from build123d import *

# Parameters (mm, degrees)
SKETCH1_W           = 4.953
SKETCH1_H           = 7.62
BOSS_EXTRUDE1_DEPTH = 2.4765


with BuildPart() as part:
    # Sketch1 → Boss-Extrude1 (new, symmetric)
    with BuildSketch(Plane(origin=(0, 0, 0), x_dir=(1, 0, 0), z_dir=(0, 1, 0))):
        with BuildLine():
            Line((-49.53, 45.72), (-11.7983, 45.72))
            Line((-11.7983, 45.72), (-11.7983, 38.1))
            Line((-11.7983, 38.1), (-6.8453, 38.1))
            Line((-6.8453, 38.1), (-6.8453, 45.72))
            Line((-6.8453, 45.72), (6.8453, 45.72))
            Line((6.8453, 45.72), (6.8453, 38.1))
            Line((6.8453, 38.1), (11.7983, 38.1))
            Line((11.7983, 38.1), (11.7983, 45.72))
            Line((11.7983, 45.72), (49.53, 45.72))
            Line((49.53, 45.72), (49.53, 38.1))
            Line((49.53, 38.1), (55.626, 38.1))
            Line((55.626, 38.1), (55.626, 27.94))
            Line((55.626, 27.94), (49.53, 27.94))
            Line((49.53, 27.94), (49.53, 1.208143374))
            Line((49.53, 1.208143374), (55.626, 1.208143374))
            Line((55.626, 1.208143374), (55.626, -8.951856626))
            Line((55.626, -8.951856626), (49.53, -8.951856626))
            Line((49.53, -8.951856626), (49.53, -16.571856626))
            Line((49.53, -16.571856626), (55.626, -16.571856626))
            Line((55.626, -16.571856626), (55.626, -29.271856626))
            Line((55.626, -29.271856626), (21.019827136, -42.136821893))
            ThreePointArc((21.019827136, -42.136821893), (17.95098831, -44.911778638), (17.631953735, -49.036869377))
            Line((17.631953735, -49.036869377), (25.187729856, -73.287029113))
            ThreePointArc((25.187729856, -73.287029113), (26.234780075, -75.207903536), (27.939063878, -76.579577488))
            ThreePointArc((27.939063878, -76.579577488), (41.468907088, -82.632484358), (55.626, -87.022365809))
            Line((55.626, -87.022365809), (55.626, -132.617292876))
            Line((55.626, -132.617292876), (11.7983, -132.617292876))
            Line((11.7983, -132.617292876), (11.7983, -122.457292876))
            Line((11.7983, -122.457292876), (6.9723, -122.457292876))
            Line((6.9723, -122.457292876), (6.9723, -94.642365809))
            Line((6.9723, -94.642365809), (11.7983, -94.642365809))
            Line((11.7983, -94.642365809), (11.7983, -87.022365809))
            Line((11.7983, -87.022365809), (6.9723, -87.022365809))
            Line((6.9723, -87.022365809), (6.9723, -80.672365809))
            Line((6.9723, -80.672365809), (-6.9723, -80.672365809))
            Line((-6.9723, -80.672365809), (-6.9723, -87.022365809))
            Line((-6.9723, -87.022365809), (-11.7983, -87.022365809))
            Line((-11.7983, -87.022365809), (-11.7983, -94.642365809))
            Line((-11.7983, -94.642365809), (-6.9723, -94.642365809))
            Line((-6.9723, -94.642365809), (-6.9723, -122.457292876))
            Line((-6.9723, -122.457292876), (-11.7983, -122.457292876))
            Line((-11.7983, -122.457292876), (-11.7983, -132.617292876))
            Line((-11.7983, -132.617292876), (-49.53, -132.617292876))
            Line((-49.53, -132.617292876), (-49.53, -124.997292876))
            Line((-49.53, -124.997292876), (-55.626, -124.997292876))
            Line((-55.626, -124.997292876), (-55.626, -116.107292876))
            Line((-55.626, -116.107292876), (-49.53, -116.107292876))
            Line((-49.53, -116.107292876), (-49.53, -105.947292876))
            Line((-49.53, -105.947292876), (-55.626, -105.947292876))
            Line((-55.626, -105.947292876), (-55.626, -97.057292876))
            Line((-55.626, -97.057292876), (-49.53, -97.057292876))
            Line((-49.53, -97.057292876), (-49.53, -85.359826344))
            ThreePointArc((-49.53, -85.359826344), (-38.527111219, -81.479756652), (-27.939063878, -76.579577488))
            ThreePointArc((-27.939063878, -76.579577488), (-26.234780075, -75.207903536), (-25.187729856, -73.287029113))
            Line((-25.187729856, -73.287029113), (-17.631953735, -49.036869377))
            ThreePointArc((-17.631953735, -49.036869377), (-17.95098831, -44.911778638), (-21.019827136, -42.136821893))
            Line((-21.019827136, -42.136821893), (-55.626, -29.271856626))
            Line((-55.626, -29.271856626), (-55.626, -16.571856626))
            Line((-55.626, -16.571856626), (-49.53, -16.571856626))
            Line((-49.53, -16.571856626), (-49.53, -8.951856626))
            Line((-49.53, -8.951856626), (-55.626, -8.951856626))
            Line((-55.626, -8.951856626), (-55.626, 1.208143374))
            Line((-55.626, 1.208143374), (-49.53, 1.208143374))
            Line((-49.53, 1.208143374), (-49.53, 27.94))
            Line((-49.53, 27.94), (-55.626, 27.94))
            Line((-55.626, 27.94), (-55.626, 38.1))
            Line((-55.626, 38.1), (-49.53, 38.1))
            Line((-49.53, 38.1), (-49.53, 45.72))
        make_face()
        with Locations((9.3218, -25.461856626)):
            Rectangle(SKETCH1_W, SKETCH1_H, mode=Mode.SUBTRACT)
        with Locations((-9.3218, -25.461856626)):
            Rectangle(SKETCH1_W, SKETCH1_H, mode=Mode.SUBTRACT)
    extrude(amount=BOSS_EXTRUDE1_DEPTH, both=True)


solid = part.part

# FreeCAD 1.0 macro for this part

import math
import FreeCAD as App
import Part
import Sketcher
from FreeCAD import Vector
Q = App.Units.Quantity


def add_polygon(sketch, points):
    """Adds a closed chain of lines whose ends are joined by coincident constraints."""
    first, n = sketch.GeometryCount, len(points)
    for a, b in zip(points, points[1:] + points[:1]):
        sketch.addGeometry(Part.LineSegment(App.Vector(*a, 0), App.Vector(*b, 0)), False)
    for i in range(n):
        sketch.addConstraint(Sketcher.Constraint("Coincident", first + i, 2, first + (i + 1) % n, 1))

doc = App.newDocument("Part")
body = doc.addObject("PartDesign::Body", "Body")

# Sketch on XZ plane
sketch1 = body.newObject("Sketcher::SketchObject", "Sketch")
sketch1.AttachmentSupport = (doc.getObject("XZ_Plane"), [""])
sketch1.MapMode = "FlatFace"
sketch1.addGeometry(Part.LineSegment(Vector(-11.8, -45.7, 0), Vector(-49.5, -45.7, 0)), False)  # 0
sketch1.addGeometry(Part.LineSegment(Vector(-49.5, -45.7, 0), Vector(-49.5, -38.1, 0)), False)  # 1
sketch1.addGeometry(Part.LineSegment(Vector(-49.5, -38.1, 0), Vector(-55.6, -38.1, 0)), False)  # 2
sketch1.addGeometry(Part.LineSegment(Vector(-55.6, -38.1, 0), Vector(-55.6, -27.9, 0)), False)  # 3
sketch1.addGeometry(Part.LineSegment(Vector(-55.6, -27.9, 0), Vector(-49.5, -27.9, 0)), False)  # 4
sketch1.addGeometry(Part.LineSegment(Vector(-49.5, -27.9, 0), Vector(-49.5, -1.2, 0)), False)  # 5
sketch1.addGeometry(Part.LineSegment(Vector(-49.5, -1.2, 0), Vector(-55.6, -1.2, 0)), False)  # 6
sketch1.addGeometry(Part.LineSegment(Vector(-55.6, -1.2, 0), Vector(-55.6, 9, 0)), False)  # 7
sketch1.addGeometry(Part.LineSegment(Vector(-55.6, 9, 0), Vector(-49.5, 9, 0)), False)  # 8
sketch1.addGeometry(Part.LineSegment(Vector(-49.5, 9, 0), Vector(-49.5, 16.6, 0)), False)  # 9
sketch1.addGeometry(Part.LineSegment(Vector(-49.5, 16.6, 0), Vector(-55.6, 16.6, 0)), False)  # 10
sketch1.addGeometry(Part.LineSegment(Vector(-55.6, 16.6, 0), Vector(-55.6, 29.3, 0)), False)  # 11
sketch1.addGeometry(Part.LineSegment(Vector(-55.6, 29.3, 0), Vector(-21, 42.1, 0)), False)  # 12
sketch1.addGeometry(Part.ArcOfCircle(Part.Circle(Vector(-23, 47.4, 0), Vector(0, 0, 1), 5.6), math.radians(-70), math.radians(17)), False)  # 13
sketch1.addGeometry(Part.LineSegment(Vector(-17.6, 49, 0), Vector(-25.2, 73.3, 0)), False)  # 14
sketch1.addGeometry(Part.ArcOfCircle(Part.Circle(Vector(-30.5, 71.6, 0), Vector(0, 0, 1), 5.6), math.radians(17), math.radians(62)), False)  # 15
sketch1.addGeometry(Part.ArcOfCircle(Part.Circle(Vector(-85.1, -33, 0), Vector(0, 0, 1), 123.6), math.radians(62.46), math.radians(73.28)), False)  # 16
sketch1.addGeometry(Part.LineSegment(Vector(-49.5, 85.4, 0), Vector(-49.5, 97.1, 0)), False)  # 17
sketch1.addGeometry(Part.LineSegment(Vector(-49.5, 97.1, 0), Vector(-55.6, 97.1, 0)), False)  # 18
sketch1.addGeometry(Part.LineSegment(Vector(-55.6, 97.1, 0), Vector(-55.6, 105.9, 0)), False)  # 19
sketch1.addGeometry(Part.LineSegment(Vector(-55.6, 105.9, 0), Vector(-49.5, 105.9, 0)), False)  # 20
sketch1.addGeometry(Part.LineSegment(Vector(-49.5, 105.9, 0), Vector(-49.5, 116.1, 0)), False)  # 21
sketch1.addGeometry(Part.LineSegment(Vector(-49.5, 116.1, 0), Vector(-55.6, 116.1, 0)), False)  # 22
sketch1.addGeometry(Part.LineSegment(Vector(-55.6, 116.1, 0), Vector(-55.6, 125, 0)), False)  # 23
sketch1.addGeometry(Part.LineSegment(Vector(-55.6, 125, 0), Vector(-49.5, 125, 0)), False)  # 24
sketch1.addGeometry(Part.LineSegment(Vector(-49.5, 125, 0), Vector(-49.5, 132.6, 0)), False)  # 25
sketch1.addGeometry(Part.LineSegment(Vector(-49.5, 132.6, 0), Vector(-11.8, 132.6, 0)), False)  # 26
sketch1.addGeometry(Part.LineSegment(Vector(-11.8, 132.6, 0), Vector(-11.8, 122.5, 0)), False)  # 27
sketch1.addGeometry(Part.LineSegment(Vector(-11.8, 122.5, 0), Vector(-7, 122.5, 0)), False)  # 28
sketch1.addGeometry(Part.LineSegment(Vector(-7, 122.5, 0), Vector(-7, 94.6, 0)), False)  # 29
sketch1.addGeometry(Part.LineSegment(Vector(-7, 94.6, 0), Vector(-11.8, 94.6, 0)), False)  # 30
sketch1.addGeometry(Part.LineSegment(Vector(-11.8, 94.6, 0), Vector(-11.8, 87, 0)), False)  # 31
sketch1.addGeometry(Part.LineSegment(Vector(-11.8, 87, 0), Vector(-7, 87, 0)), False)  # 32
sketch1.addGeometry(Part.LineSegment(Vector(-7, 87, 0), Vector(-7, 80.7, 0)), False)  # 33
sketch1.addGeometry(Part.LineSegment(Vector(-7, 80.7, 0), Vector(7, 80.7, 0)), False)  # 34
sketch1.addGeometry(Part.LineSegment(Vector(7, 80.7, 0), Vector(7, 87, 0)), False)  # 35
sketch1.addGeometry(Part.LineSegment(Vector(7, 87, 0), Vector(11.8, 87, 0)), False)  # 36
sketch1.addGeometry(Part.LineSegment(Vector(11.8, 87, 0), Vector(11.8, 94.6, 0)), False)  # 37
sketch1.addGeometry(Part.LineSegment(Vector(11.8, 94.6, 0), Vector(7, 94.6, 0)), False)  # 38
sketch1.addGeometry(Part.LineSegment(Vector(7, 94.6, 0), Vector(7, 122.5, 0)), False)  # 39
sketch1.addGeometry(Part.LineSegment(Vector(7, 122.5, 0), Vector(11.8, 122.5, 0)), False)  # 40
sketch1.addGeometry(Part.LineSegment(Vector(11.8, 122.5, 0), Vector(11.8, 132.6, 0)), False)  # 41
sketch1.addGeometry(Part.LineSegment(Vector(11.8, 132.6, 0), Vector(55.6, 132.6, 0)), False)  # 42
sketch1.addGeometry(Part.LineSegment(Vector(55.6, 132.6, 0), Vector(55.6, 87, 0)), False)  # 43
sketch1.addGeometry(Part.ArcOfCircle(Part.Circle(Vector(85.1, -33, 0), Vector(0, 0, 1), 123.6), math.radians(103.79), math.radians(117.54)), False)  # 44
sketch1.addGeometry(Part.ArcOfCircle(Part.Circle(Vector(30.5, 71.6, 0), Vector(0, 0, 1), 5.6), math.radians(118), math.radians(163)), False)  # 45
sketch1.addGeometry(Part.LineSegment(Vector(25.2, 73.3, 0), Vector(17.6, 49, 0)), False)  # 46
sketch1.addGeometry(Part.ArcOfCircle(Part.Circle(Vector(23, 47.4, 0), Vector(0, 0, 1), 5.6), math.radians(163), math.radians(250)), False)  # 47
sketch1.addGeometry(Part.LineSegment(Vector(21, 42.1, 0), Vector(55.6, 29.3, 0)), False)  # 48
sketch1.addGeometry(Part.LineSegment(Vector(55.6, 29.3, 0), Vector(55.6, 16.6, 0)), False)  # 49
sketch1.addGeometry(Part.LineSegment(Vector(55.6, 16.6, 0), Vector(49.5, 16.6, 0)), False)  # 50
sketch1.addGeometry(Part.LineSegment(Vector(49.5, 16.6, 0), Vector(49.5, 9, 0)), False)  # 51
sketch1.addGeometry(Part.LineSegment(Vector(49.5, 9, 0), Vector(55.6, 9, 0)), False)  # 52
sketch1.addGeometry(Part.LineSegment(Vector(55.6, 9, 0), Vector(55.6, -1.2, 0)), False)  # 53
sketch1.addGeometry(Part.LineSegment(Vector(55.6, -1.2, 0), Vector(49.5, -1.2, 0)), False)  # 54
sketch1.addGeometry(Part.LineSegment(Vector(49.5, -1.2, 0), Vector(49.5, -27.9, 0)), False)  # 55
sketch1.addGeometry(Part.LineSegment(Vector(49.5, -27.9, 0), Vector(55.6, -27.9, 0)), False)  # 56
sketch1.addGeometry(Part.LineSegment(Vector(55.6, -27.9, 0), Vector(55.6, -38.1, 0)), False)  # 57
sketch1.addGeometry(Part.LineSegment(Vector(55.6, -38.1, 0), Vector(49.5, -38.1, 0)), False)  # 58
sketch1.addGeometry(Part.LineSegment(Vector(49.5, -38.1, 0), Vector(49.5, -45.7, 0)), False)  # 59
sketch1.addGeometry(Part.LineSegment(Vector(49.5, -45.7, 0), Vector(11.8, -45.7, 0)), False)  # 60
sketch1.addGeometry(Part.LineSegment(Vector(11.8, -45.7, 0), Vector(11.8, -38.1, 0)), False)  # 61
sketch1.addGeometry(Part.LineSegment(Vector(11.8, -38.1, 0), Vector(6.8, -38.1, 0)), False)  # 62
sketch1.addGeometry(Part.LineSegment(Vector(6.8, -38.1, 0), Vector(6.8, -45.7, 0)), False)  # 63
sketch1.addGeometry(Part.LineSegment(Vector(6.8, -45.7, 0), Vector(-6.8, -45.7, 0)), False)  # 64
sketch1.addGeometry(Part.LineSegment(Vector(-6.8, -45.7, 0), Vector(-6.8, -38.1, 0)), False)  # 65
sketch1.addGeometry(Part.LineSegment(Vector(-6.8, -38.1, 0), Vector(-11.8, -38.1, 0)), False)  # 66
sketch1.addGeometry(Part.LineSegment(Vector(-11.8, -38.1, 0), Vector(-11.8, -45.7, 0)), False)  # 67
add_polygon(sketch1, [(6.8, 29.3), (6.8, 21.7), (11.8, 21.7), (11.8, 29.3)])  # lines 68-71
add_polygon(sketch1, [(-11.8, 29.3), (-11.8, 21.7), (-6.8, 21.7), (-6.8, 29.3)])  # lines 72-75
sketch1.addConstraint([
    Sketcher.Constraint("Coincident", 0, 2, 1, 1),
    Sketcher.Constraint("Coincident", 1, 2, 2, 1),
    Sketcher.Constraint("Coincident", 2, 2, 3, 1),
    Sketcher.Constraint("Coincident", 3, 2, 4, 1),
    Sketcher.Constraint("Coincident", 4, 2, 5, 1),
    Sketcher.Constraint("Coincident", 5, 2, 6, 1),
    Sketcher.Constraint("Coincident", 6, 2, 7, 1),
    Sketcher.Constraint("Coincident", 7, 2, 8, 1),
    Sketcher.Constraint("Coincident", 8, 2, 9, 1),
    Sketcher.Constraint("Coincident", 9, 2, 10, 1),
    Sketcher.Constraint("Coincident", 10, 2, 11, 1),
    Sketcher.Constraint("Coincident", 11, 2, 12, 1),
    Sketcher.Constraint("Tangent", 12, 2, 13, 1),
    Sketcher.Constraint("Tangent", 13, 2, 14, 1),
    Sketcher.Constraint("Tangent", 14, 2, 15, 1),
    Sketcher.Constraint("Tangent", 15, 2, 16, 1),
    Sketcher.Constraint("Coincident", 16, 2, 17, 1),
    Sketcher.Constraint("Coincident", 17, 2, 18, 1),
    Sketcher.Constraint("Coincident", 18, 2, 19, 1),
    Sketcher.Constraint("Coincident", 19, 2, 20, 1),
    Sketcher.Constraint("Coincident", 20, 2, 21, 1),
    Sketcher.Constraint("Coincident", 21, 2, 22, 1),
    Sketcher.Constraint("Coincident", 22, 2, 23, 1),
    Sketcher.Constraint("Coincident", 23, 2, 24, 1),
    Sketcher.Constraint("Coincident", 24, 2, 25, 1),
    Sketcher.Constraint("Coincident", 25, 2, 26, 1),
    Sketcher.Constraint("Coincident", 26, 2, 27, 1),
    Sketcher.Constraint("Coincident", 27, 2, 28, 1),
    Sketcher.Constraint("Coincident", 28, 2, 29, 1),
    Sketcher.Constraint("Coincident", 29, 2, 30, 1),
    Sketcher.Constraint("Coincident", 30, 2, 31, 1),
    Sketcher.Constraint("Coincident", 31, 2, 32, 1),
    Sketcher.Constraint("Coincident", 32, 2, 33, 1),
    Sketcher.Constraint("Coincident", 33, 2, 34, 1),
    Sketcher.Constraint("Coincident", 34, 2, 35, 1),
    Sketcher.Constraint("Coincident", 35, 2, 36, 1),
    Sketcher.Constraint("Coincident", 36, 2, 37, 1),
    Sketcher.Constraint("Coincident", 37, 2, 38, 1),
    Sketcher.Constraint("Coincident", 38, 2, 39, 1),
    Sketcher.Constraint("Coincident", 39, 2, 40, 1),
    Sketcher.Constraint("Coincident", 40, 2, 41, 1),
    Sketcher.Constraint("Coincident", 41, 2, 42, 1),
    Sketcher.Constraint("Coincident", 42, 2, 43, 1),
    Sketcher.Constraint("Coincident", 43, 2, 44, 1),
    Sketcher.Constraint("Tangent", 44, 2, 45, 1),
    Sketcher.Constraint("Tangent", 45, 2, 46, 1),
    Sketcher.Constraint("Tangent", 46, 2, 47, 1),
    Sketcher.Constraint("Tangent", 47, 2, 48, 1),
    Sketcher.Constraint("Coincident", 48, 2, 49, 1),
    Sketcher.Constraint("Coincident", 49, 2, 50, 1),
    Sketcher.Constraint("Coincident", 50, 2, 51, 1),
    Sketcher.Constraint("Coincident", 51, 2, 52, 1),
    Sketcher.Constraint("Coincident", 52, 2, 53, 1),
    Sketcher.Constraint("Coincident", 53, 2, 54, 1),
    Sketcher.Constraint("Coincident", 54, 2, 55, 1),
    Sketcher.Constraint("Coincident", 55, 2, 56, 1),
    Sketcher.Constraint("Coincident", 56, 2, 57, 1),
    Sketcher.Constraint("Coincident", 57, 2, 58, 1),
    Sketcher.Constraint("Coincident", 58, 2, 59, 1),
    Sketcher.Constraint("Coincident", 59, 2, 60, 1),
    Sketcher.Constraint("Coincident", 60, 2, 61, 1),
    Sketcher.Constraint("Coincident", 61, 2, 62, 1),
    Sketcher.Constraint("Coincident", 62, 2, 63, 1),
    Sketcher.Constraint("Coincident", 63, 2, 64, 1),
    Sketcher.Constraint("Coincident", 64, 2, 65, 1),
    Sketcher.Constraint("Coincident", 65, 2, 66, 1),
    Sketcher.Constraint("Coincident", 66, 2, 67, 1),
    Sketcher.Constraint("Coincident", 67, 2, 0, 1),
    Sketcher.Constraint("Horizontal", 0),
    Sketcher.Constraint("Vertical", 1),
    Sketcher.Constraint("Horizontal", 2),
    Sketcher.Constraint("Vertical", 3),
    Sketcher.Constraint("Horizontal", 4),
    Sketcher.Constraint("Vertical", 5),
    Sketcher.Constraint("Horizontal", 6),
    Sketcher.Constraint("Vertical", 7),
    Sketcher.Constraint("Horizontal", 8),
    Sketcher.Constraint("Vertical", 9),
    Sketcher.Constraint("Horizontal", 10),
    Sketcher.Constraint("Vertical", 11),
    Sketcher.Constraint("Vertical", 17),
    Sketcher.Constraint("Horizontal", 18),
    Sketcher.Constraint("Vertical", 19),
    Sketcher.Constraint("Horizontal", 20),
    Sketcher.Constraint("Vertical", 21),
    Sketcher.Constraint("Horizontal", 22),
    Sketcher.Constraint("Vertical", 23),
    Sketcher.Constraint("Horizontal", 24),
    Sketcher.Constraint("Vertical", 25),
    Sketcher.Constraint("Horizontal", 26),
    Sketcher.Constraint("Vertical", 27),
    Sketcher.Constraint("Horizontal", 28),
    Sketcher.Constraint("Vertical", 29),
    Sketcher.Constraint("Horizontal", 30),
    Sketcher.Constraint("Vertical", 31),
    Sketcher.Constraint("Horizontal", 32),
    Sketcher.Constraint("Vertical", 33),
    Sketcher.Constraint("Horizontal", 34),
    Sketcher.Constraint("Vertical", 35),
    Sketcher.Constraint("Horizontal", 36),
    Sketcher.Constraint("Vertical", 37),
    Sketcher.Constraint("Horizontal", 38),
    Sketcher.Constraint("Vertical", 39),
    Sketcher.Constraint("Horizontal", 40),
    Sketcher.Constraint("Vertical", 41),
    Sketcher.Constraint("Horizontal", 42),
    Sketcher.Constraint("Vertical", 43),
    Sketcher.Constraint("Vertical", 49),
    Sketcher.Constraint("Horizontal", 50),
    Sketcher.Constraint("Vertical", 51),
    Sketcher.Constraint("Horizontal", 52),
    Sketcher.Constraint("Vertical", 53),
    Sketcher.Constraint("Horizontal", 54),
    Sketcher.Constraint("Vertical", 55),
    Sketcher.Constraint("Horizontal", 56),
    Sketcher.Constraint("Vertical", 57),
    Sketcher.Constraint("Horizontal", 58),
    Sketcher.Constraint("Vertical", 59),
    Sketcher.Constraint("Horizontal", 60),
    Sketcher.Constraint("Vertical", 61),
    Sketcher.Constraint("Horizontal", 62),
    Sketcher.Constraint("Vertical", 63),
    Sketcher.Constraint("Horizontal", 64),
    Sketcher.Constraint("Vertical", 65),
    Sketcher.Constraint("Horizontal", 66),
    Sketcher.Constraint("Vertical", 67),
    Sketcher.Constraint("Vertical", 68),
    Sketcher.Constraint("Horizontal", 69),
    Sketcher.Constraint("Vertical", 70),
    Sketcher.Constraint("Horizontal", 71),
    Sketcher.Constraint("Vertical", 72),
    Sketcher.Constraint("Horizontal", 73),
    Sketcher.Constraint("Vertical", 74),
    Sketcher.Constraint("Horizontal", 75),
    Sketcher.Constraint("Equal", 13, 15),
    Sketcher.Constraint("Equal", 16, 44),
    Sketcher.Constraint("Equal", 15, 45),
    Sketcher.Constraint("Equal", 45, 47),
    Sketcher.Constraint("Symmetric", 16, 3, 44, 3, -2),
    Sketcher.Constraint("Symmetric", 13, 3, 47, 3, -2),
    Sketcher.Constraint("Symmetric", 32, 2, 35, 2, -2),
    Sketcher.Constraint("Symmetric", 30, 2, 37, 2, -2),
    Sketcher.Constraint("Symmetric", 28, 2, 39, 2, -2),
    Sketcher.Constraint("Symmetric", 26, 2, 41, 2, -2),
    Sketcher.Constraint("Symmetric", 11, 2, 48, 2, -2),
    Sketcher.Constraint("Symmetric", 9, 2, 50, 2, -2),
    Sketcher.Constraint("Symmetric", 7, 2, 52, 2, -2),
    Sketcher.Constraint("Symmetric", 5, 2, 54, 2, -2),
    Sketcher.Constraint("Symmetric", 3, 2, 56, 2, -2),
    Sketcher.Constraint("Symmetric", 1, 2, 58, 2, -2),
    Sketcher.Constraint("Symmetric", 62, 2, 65, 2, -2),
    Sketcher.Constraint("Symmetric", 60, 2, 67, 2, -2),
    Sketcher.Constraint("Symmetric", 69, 2, 72, 2, -2),
    Sketcher.Constraint("Symmetric", 71, 2, 74, 2, -2),
    Sketcher.Constraint("Horizontal", 15, 3, 45, 3),
    Sketcher.Constraint("Horizontal", 36, 2, 43, 2),
    Sketcher.Constraint("Horizontal", 58, 2, 61, 2),
    Sketcher.Constraint("Horizontal", 60, 2, 63, 2),
    Sketcher.Constraint("Horizontal", 48, 2, 70, 2),
    Sketcher.Constraint("Vertical", 1, 2, 4, 2),
    Sketcher.Constraint("Vertical", 3, 2, 6, 2),
    Sketcher.Constraint("Vertical", 5, 2, 8, 2),
    Sketcher.Constraint("Vertical", 7, 2, 10, 2),
    Sketcher.Constraint("Vertical", 9, 2, 16, 2),
    Sketcher.Constraint("Vertical", 11, 2, 18, 2),
    Sketcher.Constraint("Vertical", 17, 2, 20, 2),
    Sketcher.Constraint("Vertical", 19, 2, 22, 2),
    Sketcher.Constraint("Vertical", 21, 2, 24, 2),
    Sketcher.Constraint("Vertical", 27, 2, 30, 2),
    Sketcher.Constraint("Vertical", 29, 2, 32, 2),
    Sketcher.Constraint("Vertical", 43, 2, 48, 2),
    Sketcher.Constraint("Vertical", 41, 2, 60, 2),
    Sketcher.Constraint("Vertical", 63, 2, 68, 2),
    Sketcher.Constraint("Vertical", 61, 2, 69, 2),
    Sketcher.Constraint("Equal", 3, 7),
    Sketcher.Constraint("Equal", 1, 9),
    Sketcher.Constraint("Equal", 7, 21),
    Sketcher.Constraint("Equal", 19, 23),
    Sketcher.Constraint("Equal", 9, 25),
    Sketcher.Constraint("Equal", 21, 27),
    Sketcher.Constraint("Equal", 25, 31),
    Sketcher.Constraint("Equal", 67, 68),
    Sketcher.Constraint("Radius", 13, Q("0.22 in")),
    Sketcher.Constraint("Distance", 14, Q("1 in")),
    Sketcher.Constraint("DistanceY", 1, 1, 1, 2, Q("0.3 in")),
    Sketcher.Constraint("DistanceY", 3, 1, 3, 2, Q("0.4 in")),
    Sketcher.Constraint("DistanceY", 11, 1, 11, 2, Q("0.5 in")),
    Sketcher.Constraint("DistanceX", 2, 2, 2, 1, Q("0.24 in")),
    Sketcher.Constraint("DistanceX", 28, 1, 28, 2, Q("0.19 in")),
    Sketcher.Constraint("DistanceY", 19, 1, 19, 2, Q("0.35 in")),
    Sketcher.Constraint("DistanceY", 33, 2, 33, 1, Q("0.25 in")),
    Sketcher.Constraint("DistanceY", 16, 3, -1, 1, Q("1.3 in")),
    Sketcher.Constraint("DistanceY", 0, 2, -1, 1, Q("1.8 in")),
    Sketcher.Constraint("DistanceX", 34, 1, 34, 2, Q("0.549 in")),
    Sketcher.Constraint("DistanceX", 62, 2, 62, 1, Q("0.195 in")),
    Sketcher.Constraint("DistanceX", 16, 3, -1, 1, Q("3.35 in")),
    Sketcher.Constraint("DistanceX", 0, 2, -1, 1, Q("1.95 in")),
    Sketcher.Constraint("Radius", 16, 123.605408),
    Sketcher.Constraint("DistanceY", -1, 1, 13, 3, 47.374599),
    Sketcher.Constraint("Distance", 12, 36.92011),
    Sketcher.Constraint("DistanceY", 5, 1, 5, 2, 26.731857),
    Sketcher.Constraint("DistanceY", 17, 1, 17, 2, 11.697467),
])
pad1 = body.newObject("PartDesign::Pad", "Pad")
pad1.Profile = sketch1
pad1.Length = Q("0.195 in")
pad1.Midplane = True

doc.recompute()
